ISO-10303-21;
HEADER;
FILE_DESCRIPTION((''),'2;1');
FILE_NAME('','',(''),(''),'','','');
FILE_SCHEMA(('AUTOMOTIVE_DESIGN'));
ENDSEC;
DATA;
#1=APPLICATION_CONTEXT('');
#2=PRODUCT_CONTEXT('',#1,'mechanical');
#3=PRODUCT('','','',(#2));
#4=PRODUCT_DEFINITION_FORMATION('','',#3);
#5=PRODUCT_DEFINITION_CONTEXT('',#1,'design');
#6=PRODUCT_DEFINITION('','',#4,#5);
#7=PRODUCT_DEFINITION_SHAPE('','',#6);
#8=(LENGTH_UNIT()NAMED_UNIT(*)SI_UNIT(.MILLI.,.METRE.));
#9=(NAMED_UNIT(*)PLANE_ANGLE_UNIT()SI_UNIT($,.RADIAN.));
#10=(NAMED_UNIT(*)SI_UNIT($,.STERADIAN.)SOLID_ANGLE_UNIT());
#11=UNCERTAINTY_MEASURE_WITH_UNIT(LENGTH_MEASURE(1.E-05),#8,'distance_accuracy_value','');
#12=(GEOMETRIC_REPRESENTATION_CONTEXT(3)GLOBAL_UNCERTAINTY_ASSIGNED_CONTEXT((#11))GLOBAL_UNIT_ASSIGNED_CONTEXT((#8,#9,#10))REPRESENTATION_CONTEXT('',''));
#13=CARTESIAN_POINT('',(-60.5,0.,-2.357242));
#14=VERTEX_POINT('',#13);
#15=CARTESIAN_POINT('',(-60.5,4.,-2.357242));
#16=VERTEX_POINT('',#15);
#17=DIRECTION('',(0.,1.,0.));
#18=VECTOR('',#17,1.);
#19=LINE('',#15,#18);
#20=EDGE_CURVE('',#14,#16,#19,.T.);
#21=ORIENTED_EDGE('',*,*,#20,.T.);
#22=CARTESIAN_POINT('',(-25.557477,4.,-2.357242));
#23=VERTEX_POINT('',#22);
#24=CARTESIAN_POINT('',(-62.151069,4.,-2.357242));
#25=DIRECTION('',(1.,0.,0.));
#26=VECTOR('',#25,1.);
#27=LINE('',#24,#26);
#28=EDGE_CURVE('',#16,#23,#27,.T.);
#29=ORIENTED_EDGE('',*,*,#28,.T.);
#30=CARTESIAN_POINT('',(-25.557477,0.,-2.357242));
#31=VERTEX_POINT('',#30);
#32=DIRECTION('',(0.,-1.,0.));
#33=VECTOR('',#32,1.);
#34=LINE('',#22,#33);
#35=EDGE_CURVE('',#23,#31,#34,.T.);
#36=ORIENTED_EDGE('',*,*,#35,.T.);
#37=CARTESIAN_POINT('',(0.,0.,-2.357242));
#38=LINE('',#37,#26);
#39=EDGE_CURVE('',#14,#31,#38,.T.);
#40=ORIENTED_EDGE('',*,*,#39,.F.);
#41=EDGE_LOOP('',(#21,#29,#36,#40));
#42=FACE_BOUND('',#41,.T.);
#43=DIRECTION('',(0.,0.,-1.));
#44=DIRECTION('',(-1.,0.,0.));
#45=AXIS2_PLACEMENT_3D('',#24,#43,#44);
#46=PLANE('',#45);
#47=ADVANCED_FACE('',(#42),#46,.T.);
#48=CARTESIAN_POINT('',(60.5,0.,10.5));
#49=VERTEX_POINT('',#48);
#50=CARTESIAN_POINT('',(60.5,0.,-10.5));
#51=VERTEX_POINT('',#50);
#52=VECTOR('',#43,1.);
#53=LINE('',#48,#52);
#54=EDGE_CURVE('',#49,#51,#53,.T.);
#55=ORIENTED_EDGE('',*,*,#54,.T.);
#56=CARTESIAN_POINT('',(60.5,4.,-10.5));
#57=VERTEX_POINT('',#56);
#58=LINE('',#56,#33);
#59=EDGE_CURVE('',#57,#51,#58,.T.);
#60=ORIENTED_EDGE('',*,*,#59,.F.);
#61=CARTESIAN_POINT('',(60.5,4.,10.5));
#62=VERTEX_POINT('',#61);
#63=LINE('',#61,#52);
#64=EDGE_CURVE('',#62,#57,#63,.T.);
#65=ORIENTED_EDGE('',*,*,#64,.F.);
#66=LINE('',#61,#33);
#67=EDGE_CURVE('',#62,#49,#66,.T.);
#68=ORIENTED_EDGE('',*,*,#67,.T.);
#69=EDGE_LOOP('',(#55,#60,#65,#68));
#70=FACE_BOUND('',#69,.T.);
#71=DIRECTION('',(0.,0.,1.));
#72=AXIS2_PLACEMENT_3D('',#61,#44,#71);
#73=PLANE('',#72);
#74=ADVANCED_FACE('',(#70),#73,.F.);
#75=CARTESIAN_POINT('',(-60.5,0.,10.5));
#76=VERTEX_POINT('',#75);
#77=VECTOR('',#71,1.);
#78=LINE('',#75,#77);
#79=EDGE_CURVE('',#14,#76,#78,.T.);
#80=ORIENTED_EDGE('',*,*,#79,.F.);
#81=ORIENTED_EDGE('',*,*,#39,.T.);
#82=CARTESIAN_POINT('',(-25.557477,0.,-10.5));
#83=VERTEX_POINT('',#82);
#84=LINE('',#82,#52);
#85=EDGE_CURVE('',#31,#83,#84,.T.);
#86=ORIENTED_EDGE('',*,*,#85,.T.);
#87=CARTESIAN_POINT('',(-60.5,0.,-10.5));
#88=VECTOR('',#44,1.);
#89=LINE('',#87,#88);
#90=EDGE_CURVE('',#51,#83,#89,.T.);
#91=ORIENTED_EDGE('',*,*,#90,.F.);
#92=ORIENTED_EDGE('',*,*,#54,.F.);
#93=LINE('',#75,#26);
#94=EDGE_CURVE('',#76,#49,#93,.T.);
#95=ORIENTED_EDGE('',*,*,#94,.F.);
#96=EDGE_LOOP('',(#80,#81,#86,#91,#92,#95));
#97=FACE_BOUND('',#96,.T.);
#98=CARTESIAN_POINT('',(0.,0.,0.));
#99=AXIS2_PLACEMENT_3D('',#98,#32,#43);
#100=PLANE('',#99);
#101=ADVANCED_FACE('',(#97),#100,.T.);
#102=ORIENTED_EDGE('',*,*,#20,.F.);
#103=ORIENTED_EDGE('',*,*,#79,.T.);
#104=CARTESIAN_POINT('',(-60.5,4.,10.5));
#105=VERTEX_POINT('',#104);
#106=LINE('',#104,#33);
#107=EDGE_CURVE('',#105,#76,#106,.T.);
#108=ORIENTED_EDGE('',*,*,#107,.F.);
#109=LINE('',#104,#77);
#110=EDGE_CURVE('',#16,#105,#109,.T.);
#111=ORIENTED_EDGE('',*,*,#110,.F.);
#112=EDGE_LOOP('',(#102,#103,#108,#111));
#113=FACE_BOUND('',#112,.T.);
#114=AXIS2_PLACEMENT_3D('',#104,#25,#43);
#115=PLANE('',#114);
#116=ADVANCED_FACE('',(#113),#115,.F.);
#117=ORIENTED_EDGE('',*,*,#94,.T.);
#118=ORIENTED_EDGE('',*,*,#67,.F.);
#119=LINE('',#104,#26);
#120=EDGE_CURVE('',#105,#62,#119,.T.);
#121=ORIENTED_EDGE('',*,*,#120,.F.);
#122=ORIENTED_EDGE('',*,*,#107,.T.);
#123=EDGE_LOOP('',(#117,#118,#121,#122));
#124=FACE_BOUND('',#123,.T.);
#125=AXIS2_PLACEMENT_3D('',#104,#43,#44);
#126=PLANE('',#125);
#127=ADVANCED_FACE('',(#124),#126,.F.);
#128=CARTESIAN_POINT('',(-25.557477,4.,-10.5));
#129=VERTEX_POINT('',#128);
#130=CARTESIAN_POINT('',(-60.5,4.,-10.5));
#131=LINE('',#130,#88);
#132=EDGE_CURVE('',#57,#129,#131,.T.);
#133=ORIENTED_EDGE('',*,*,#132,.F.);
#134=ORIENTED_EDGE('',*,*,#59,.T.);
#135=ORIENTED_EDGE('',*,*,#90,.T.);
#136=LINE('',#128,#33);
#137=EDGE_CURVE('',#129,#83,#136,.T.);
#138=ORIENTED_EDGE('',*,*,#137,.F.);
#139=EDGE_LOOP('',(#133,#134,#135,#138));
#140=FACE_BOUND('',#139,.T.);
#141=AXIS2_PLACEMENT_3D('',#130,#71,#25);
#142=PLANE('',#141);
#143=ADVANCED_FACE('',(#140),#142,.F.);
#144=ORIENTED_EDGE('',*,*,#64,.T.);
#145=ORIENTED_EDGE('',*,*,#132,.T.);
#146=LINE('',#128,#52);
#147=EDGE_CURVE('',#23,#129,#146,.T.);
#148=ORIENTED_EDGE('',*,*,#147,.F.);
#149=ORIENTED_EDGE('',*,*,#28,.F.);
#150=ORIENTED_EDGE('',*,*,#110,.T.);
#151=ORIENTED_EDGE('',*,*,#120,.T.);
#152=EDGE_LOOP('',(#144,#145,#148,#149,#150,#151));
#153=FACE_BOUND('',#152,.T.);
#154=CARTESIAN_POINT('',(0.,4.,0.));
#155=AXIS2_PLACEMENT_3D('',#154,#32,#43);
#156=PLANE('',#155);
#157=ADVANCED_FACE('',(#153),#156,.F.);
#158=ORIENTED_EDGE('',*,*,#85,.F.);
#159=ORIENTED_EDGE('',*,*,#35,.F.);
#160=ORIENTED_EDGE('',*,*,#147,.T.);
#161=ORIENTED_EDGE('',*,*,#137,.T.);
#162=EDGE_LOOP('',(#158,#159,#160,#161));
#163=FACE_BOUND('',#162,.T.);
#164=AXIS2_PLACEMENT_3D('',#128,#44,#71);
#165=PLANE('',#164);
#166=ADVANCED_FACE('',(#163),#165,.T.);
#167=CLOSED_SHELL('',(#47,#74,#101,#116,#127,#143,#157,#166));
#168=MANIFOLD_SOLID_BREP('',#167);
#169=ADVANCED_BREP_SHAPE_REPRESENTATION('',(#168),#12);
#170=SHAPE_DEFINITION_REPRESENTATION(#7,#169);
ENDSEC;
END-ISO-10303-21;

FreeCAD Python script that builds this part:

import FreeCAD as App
import Part
import Sketcher

doc = App.newDocument("Part")
body = doc.addObject("PartDesign::Body", "Body")

# Sketch on XZ plane
sketch1 = body.newObject("Sketcher::SketchObject", "Sketch")
sketch1.AttachmentSupport = (doc.getObject("XZ_Plane"), [""])
sketch1.MapMode = "FlatFace"
sketch1.addGeometry([
    Part.LineSegment(App.Vector(-60, -10, 0), App.Vector(-60, 10, 0)),
    Part.LineSegment(App.Vector(-60, 10, 0), App.Vector(60, 10, 0)),
    Part.LineSegment(App.Vector(60, 10, 0), App.Vector(60, -10, 0)),
    Part.LineSegment(App.Vector(60, -10, 0), App.Vector(-60, -10, 0)),
], False)
sketch1.addConstraint([
    Sketcher.Constraint("Coincident", 0, 2, 1, 1),
    Sketcher.Constraint("Coincident", 1, 2, 2, 1),
    Sketcher.Constraint("Coincident", 2, 2, 3, 1),
    Sketcher.Constraint("Coincident", 3, 2, 0, 1),
    Sketcher.Constraint("Vertical", 0),
    Sketcher.Constraint("Horizontal", 1),
    Sketcher.Constraint("Vertical", 2),
    Sketcher.Constraint("Horizontal", 3),
    Sketcher.Constraint("Symmetric", 0, 2, 2, 2, -1, 1),
    Sketcher.Constraint("DistanceX", 1, 1, 1, 2, 121.0),
    Sketcher.Constraint("DistanceY", 0, 1, 0, 2, 21.0),
])
pad1 = body.newObject("PartDesign::Pad", "Pad")
pad1.Profile = sketch1
pad1.Length = 4
pad1.Reversed = True

# Sketch on XZ plane
sketch2 = body.newObject("Sketcher::SketchObject", "Sketch001")
sketch2.AttachmentSupport = (doc.getObject("XZ_Plane"), [""])
sketch2.MapMode = "FlatFace"
sketch2.addGeometry([
    Part.LineSegment(App.Vector(-62, -11, 0), App.Vector(-62, -2, 0)),
    Part.LineSegment(App.Vector(-62, -2, 0), App.Vector(-26, -2, 0)),
    Part.LineSegment(App.Vector(-26, -2, 0), App.Vector(-26, -11, 0)),
    Part.LineSegment(App.Vector(-26, -11, 0), App.Vector(-62, -11, 0)),
], False)
sketch2.addConstraint([
    Sketcher.Constraint("Coincident", 0, 2, 1, 1),
    Sketcher.Constraint("Coincident", 1, 2, 2, 1),
    Sketcher.Constraint("Coincident", 2, 2, 3, 1),
    Sketcher.Constraint("Coincident", 3, 2, 0, 1),
    Sketcher.Constraint("Vertical", 0),
    Sketcher.Constraint("Horizontal", 1),
    Sketcher.Constraint("Vertical", 2),
    Sketcher.Constraint("Horizontal", 3),
    Sketcher.Constraint("DistanceY", 2, 2, -1, 1, 10.5),
    Sketcher.Constraint("DistanceX", 1, 1, 1, 2, 36.593592),
    Sketcher.Constraint("DistanceY", 0, 1, 0, 2, 8.142758),
    Sketcher.Constraint("DistanceX", 0, 2, -1, 1, 62.151069),
])
pocket1 = body.newObject("PartDesign::Pocket", "Pocket")
pocket1.Profile = sketch2
pocket1.Type = "ThroughAll"
pocket1.Midplane = True

doc.recompute()
